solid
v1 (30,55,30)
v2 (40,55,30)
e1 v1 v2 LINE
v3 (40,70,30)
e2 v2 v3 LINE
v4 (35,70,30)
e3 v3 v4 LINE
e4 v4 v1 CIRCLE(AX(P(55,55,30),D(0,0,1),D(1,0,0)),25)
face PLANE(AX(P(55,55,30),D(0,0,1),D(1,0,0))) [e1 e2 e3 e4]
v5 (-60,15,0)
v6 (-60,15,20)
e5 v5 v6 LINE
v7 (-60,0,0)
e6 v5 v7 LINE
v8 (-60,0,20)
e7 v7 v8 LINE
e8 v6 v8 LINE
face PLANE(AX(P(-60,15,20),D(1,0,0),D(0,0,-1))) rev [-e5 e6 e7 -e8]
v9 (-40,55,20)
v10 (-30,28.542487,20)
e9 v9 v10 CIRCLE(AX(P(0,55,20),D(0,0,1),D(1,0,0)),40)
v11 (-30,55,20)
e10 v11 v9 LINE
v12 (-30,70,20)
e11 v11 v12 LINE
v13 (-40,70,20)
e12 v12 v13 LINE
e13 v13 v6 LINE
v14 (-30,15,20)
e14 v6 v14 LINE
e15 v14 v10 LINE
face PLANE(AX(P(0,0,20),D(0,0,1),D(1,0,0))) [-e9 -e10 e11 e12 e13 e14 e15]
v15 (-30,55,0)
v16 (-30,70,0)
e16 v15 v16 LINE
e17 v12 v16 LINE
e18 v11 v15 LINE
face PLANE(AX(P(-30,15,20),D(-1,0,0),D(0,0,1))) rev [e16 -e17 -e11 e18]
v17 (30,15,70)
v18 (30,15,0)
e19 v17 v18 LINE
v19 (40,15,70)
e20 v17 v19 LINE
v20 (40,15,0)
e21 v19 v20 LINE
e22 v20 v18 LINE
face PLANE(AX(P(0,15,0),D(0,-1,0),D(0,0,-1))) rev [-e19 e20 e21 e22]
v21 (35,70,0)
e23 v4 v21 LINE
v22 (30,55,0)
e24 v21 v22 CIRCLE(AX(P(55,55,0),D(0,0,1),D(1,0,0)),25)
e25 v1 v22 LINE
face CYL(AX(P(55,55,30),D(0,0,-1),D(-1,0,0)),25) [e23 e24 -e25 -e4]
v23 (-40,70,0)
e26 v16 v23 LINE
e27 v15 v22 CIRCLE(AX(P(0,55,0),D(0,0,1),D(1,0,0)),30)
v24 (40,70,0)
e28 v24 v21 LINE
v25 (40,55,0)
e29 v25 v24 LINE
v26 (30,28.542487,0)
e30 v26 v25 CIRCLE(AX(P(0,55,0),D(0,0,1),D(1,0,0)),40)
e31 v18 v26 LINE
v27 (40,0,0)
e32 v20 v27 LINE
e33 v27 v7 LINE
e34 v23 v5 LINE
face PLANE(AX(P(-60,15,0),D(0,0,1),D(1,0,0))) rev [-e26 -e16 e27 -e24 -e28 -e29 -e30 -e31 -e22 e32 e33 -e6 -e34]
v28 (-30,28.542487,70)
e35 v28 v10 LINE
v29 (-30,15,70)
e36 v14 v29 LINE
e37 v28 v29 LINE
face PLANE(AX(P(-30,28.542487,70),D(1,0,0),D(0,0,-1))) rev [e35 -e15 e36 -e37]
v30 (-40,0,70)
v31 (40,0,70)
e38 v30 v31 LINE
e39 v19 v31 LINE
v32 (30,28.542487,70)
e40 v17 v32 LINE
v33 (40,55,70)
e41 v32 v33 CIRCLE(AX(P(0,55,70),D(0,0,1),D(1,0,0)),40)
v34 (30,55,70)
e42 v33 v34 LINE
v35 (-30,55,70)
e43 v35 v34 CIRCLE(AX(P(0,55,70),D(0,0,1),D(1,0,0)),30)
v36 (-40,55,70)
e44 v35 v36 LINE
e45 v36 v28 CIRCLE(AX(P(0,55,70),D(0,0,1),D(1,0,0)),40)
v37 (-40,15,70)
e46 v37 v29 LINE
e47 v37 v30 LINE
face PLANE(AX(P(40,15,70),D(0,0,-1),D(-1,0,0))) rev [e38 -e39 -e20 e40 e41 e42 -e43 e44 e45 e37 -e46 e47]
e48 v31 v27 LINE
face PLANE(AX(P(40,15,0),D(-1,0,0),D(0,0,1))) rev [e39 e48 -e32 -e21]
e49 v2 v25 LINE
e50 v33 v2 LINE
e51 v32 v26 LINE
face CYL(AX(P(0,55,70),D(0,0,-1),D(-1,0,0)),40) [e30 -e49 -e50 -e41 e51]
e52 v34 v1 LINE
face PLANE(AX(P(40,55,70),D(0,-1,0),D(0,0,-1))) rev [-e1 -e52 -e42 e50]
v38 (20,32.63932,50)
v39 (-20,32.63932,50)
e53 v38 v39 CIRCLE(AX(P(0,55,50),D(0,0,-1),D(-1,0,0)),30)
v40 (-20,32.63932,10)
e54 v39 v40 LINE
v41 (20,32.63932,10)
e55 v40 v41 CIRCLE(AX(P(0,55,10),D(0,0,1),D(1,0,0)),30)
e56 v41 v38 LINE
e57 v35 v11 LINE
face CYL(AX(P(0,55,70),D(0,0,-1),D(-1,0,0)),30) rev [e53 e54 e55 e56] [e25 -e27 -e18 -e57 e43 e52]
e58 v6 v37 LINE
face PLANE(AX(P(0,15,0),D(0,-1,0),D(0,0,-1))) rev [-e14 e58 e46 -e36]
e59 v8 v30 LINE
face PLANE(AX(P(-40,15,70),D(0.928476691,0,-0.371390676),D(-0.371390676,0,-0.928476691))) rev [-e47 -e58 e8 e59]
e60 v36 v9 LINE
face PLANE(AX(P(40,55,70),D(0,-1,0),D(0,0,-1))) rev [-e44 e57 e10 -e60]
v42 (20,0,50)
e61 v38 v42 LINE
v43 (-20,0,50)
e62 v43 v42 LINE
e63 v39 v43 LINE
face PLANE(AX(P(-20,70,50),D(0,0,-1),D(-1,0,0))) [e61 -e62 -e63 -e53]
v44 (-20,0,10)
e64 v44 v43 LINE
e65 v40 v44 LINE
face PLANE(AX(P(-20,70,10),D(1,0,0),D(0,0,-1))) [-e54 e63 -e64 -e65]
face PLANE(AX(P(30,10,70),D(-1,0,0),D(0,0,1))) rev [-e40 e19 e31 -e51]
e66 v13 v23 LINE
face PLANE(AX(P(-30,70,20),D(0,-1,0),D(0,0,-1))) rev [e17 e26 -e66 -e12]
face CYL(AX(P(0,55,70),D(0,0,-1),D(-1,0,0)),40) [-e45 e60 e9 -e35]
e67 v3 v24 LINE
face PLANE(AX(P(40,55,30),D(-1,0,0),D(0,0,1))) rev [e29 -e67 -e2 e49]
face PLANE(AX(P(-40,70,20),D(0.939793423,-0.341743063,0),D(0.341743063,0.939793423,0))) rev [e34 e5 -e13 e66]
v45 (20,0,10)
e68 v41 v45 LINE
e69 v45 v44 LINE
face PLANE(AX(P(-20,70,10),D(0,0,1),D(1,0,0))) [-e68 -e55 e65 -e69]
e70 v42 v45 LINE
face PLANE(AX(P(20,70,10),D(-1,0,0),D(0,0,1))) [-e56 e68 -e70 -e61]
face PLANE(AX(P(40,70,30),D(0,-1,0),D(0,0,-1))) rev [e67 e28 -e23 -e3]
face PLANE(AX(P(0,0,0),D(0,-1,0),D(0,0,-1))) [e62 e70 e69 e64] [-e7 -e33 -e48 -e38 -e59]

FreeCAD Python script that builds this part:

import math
import FreeCAD as App
import Part
import Sketcher
from FreeCAD import Vector
Q = App.Units.Quantity

doc = App.newDocument("Part")
params = doc.addObject("Spreadsheet::Sheet", "Params")
for row, (alias, value) in enumerate([
    ("sketch1_width", "100 mm"),
    ("sketch1_width2", "80 mm"),
    ("sketch1_height", "20 mm"),
    ("sketch1_height2", "70 mm"),
    ("pad1_length", "15 mm"),
    ("sketch2_radius", "40 mm"),
    ("sketch2_width", "60 mm"),
    ("pad2_length", "70 mm"),
    ("sketch3_width", "30 mm"),
    ("sketch3_width2", "10 mm"),
    ("sketch3_height", "55 mm"),
    ("pad3_length", "20 mm"),
    ("sketch4_radius", "25 mm"),
    ("sketch4_width", "10 mm"),
    ("sketch4_width2", "5 mm"),
    ("pad4_length", "30 mm"),
    ("sketch5_radius", "30 mm"),
    ("sketch6_width", "40 mm"),
], start=1):
    params.set(f"A{row}", alias)
    params.set(f"B{row}", "=" + value)
    params.setAlias(f"B{row}", alias)

body = doc.addObject("PartDesign::Body", "Body")

sketch1 = doc.addObject("Sketcher::SketchObject", "Sketch")
body.addObject(sketch1)
sketch1.AttachmentSupport = (doc.XZ_Plane, [""])
sketch1.MapMode = "FlatFace"
sketch1.addGeometry([
    Part.LineSegment(Vector(40, 0, 0), Vector(-60, 0, 0)),
    Part.LineSegment(Vector(-60, 0, 0), Vector(-60, 20, 0)),
    Part.LineSegment(Vector(-60, 20, 0), Vector(-40, 70, 0)),
    Part.LineSegment(Vector(-40, 70, 0), Vector(40, 70, 0)),
    Part.LineSegment(Vector(40, 70, 0), Vector(40, 0, 0)),
], False)
sketch1.addConstraint([
    Sketcher.Constraint("Coincident", 0, 2, 1, 1),
    Sketcher.Constraint("Coincident", 1, 2, 2, 1),
    Sketcher.Constraint("Coincident", 2, 2, 3, 1),
    Sketcher.Constraint("Coincident", 3, 2, 4, 1),
    Sketcher.Constraint("Coincident", 4, 2, 0, 1),
    Sketcher.Constraint("Horizontal", 0),
    Sketcher.Constraint("Vertical", 1),
    Sketcher.Constraint("Horizontal", 3),
    Sketcher.Constraint("Vertical", 4),
    Sketcher.Constraint("PointOnObject", 0, 2, -1),
    Sketcher.Constraint("DistanceX", 0, 2, 0, 1, Q("100 mm")),
    Sketcher.Constraint("DistanceX", 3, 1, 3, 2, Q("80 mm")),
    Sketcher.Constraint("DistanceY", 1, 1, 1, 2, Q("20 mm")),
    Sketcher.Constraint("DistanceY", 4, 2, 4, 1, Q("70 mm")),
    Sketcher.Constraint("DistanceX", 0, 2, -1, 1, Q("60 mm")),
])
sketch1.setExpression("Constraints[10]", "Params.sketch1_width")
sketch1.setExpression("Constraints[11]", "Params.sketch1_width2")
sketch1.setExpression("Constraints[12]", "Params.sketch1_height")
sketch1.setExpression("Constraints[13]", "Params.sketch1_height2")
pad1 = doc.addObject("PartDesign::Pad", "Pad")
body.addObject(pad1)
pad1.Profile = sketch1
pad1.setExpression("Length", "Params.pad1_length")
pad1.Reversed = True

sketch2 = doc.addObject("Sketcher::SketchObject", "Sketch001")
body.addObject(sketch2)
sketch2.AttachmentSupport = (doc.XY_Plane, [""])
sketch2.MapMode = "FlatFace"
sketch2.addGeometry([
    Part.LineSegment(Vector(-30, 10, 0), Vector(30, 10, 0)),
    Part.LineSegment(Vector(30, 10, 0), Vector(30, 29, 0)),
    Part.ArcOfCircle(Part.Circle(Vector(0, 55, 0), Vector(0, 0, 1), 40), math.radians(-41), math.radians(0)),
    Part.LineSegment(Vector(40, 55, 0), Vector(-40, 55, 0)),
    Part.ArcOfCircle(Part.Circle(Vector(0, 55, 0), Vector(0, 0, 1), 40), math.radians(180), math.radians(221)),
    Part.LineSegment(Vector(-30, 29, 0), Vector(-30, 10, 0)),
], False)
sketch2.addConstraint([
    Sketcher.Constraint("Coincident", 0, 2, 1, 1),
    Sketcher.Constraint("Coincident", 1, 2, 2, 1),
    Sketcher.Constraint("Coincident", 2, 2, 3, 1),
    Sketcher.Constraint("Coincident", 3, 2, 4, 1),
    Sketcher.Constraint("Coincident", 4, 2, 5, 1),
    Sketcher.Constraint("Coincident", 5, 2, 0, 1),
    Sketcher.Constraint("Horizontal", 0),
    Sketcher.Constraint("Vertical", 1),
    Sketcher.Constraint("Horizontal", 3),
    Sketcher.Constraint("Vertical", 5),
    Sketcher.Constraint("Coincident", 4, 3, 2, 3),
    Sketcher.Constraint("Equal", 2, 4),
    Sketcher.Constraint("Symmetric", 1, 2, 4, 2, -2),
    Sketcher.Constraint("Horizontal", 4, 3, 2, 2),
    Sketcher.Constraint("Radius", 2, Q("40 mm")),
    Sketcher.Constraint("DistanceX", 0, 1, 0, 2, Q("60 mm")),
    Sketcher.Constraint("DistanceY", -1, 1, 2, 3, Q("55 mm")),
    Sketcher.Constraint("DistanceY", -1, 1, 0, 2, Q("10 mm")),
])
sketch2.setExpression("Constraints[14]", "Params.sketch2_radius")
sketch2.setExpression("Constraints[15]", "Params.sketch2_width")
pad2 = doc.addObject("PartDesign::Pad", "Pad001")
body.addObject(pad2)
pad2.Profile = sketch2
pad2.setExpression("Length", "Params.pad2_length")

sketch3 = doc.addObject("Sketcher::SketchObject", "Sketch002")
body.addObject(sketch3)
sketch3.AttachmentSupport = (doc.XY_Plane, [""])
sketch3.MapMode = "FlatFace"
sketch3.addGeometry([
    Part.LineSegment(Vector(-60, 15, 0), Vector(-30, 15, 0)),
    Part.LineSegment(Vector(-30, 15, 0), Vector(-30, 70, 0)),
    Part.LineSegment(Vector(-30, 70, 0), Vector(-40, 70, 0)),
    Part.LineSegment(Vector(-40, 70, 0), Vector(-60, 15, 0)),
], False)
sketch3.addConstraint([
    Sketcher.Constraint("Coincident", 0, 2, 1, 1),
    Sketcher.Constraint("Coincident", 1, 2, 2, 1),
    Sketcher.Constraint("Coincident", 2, 2, 3, 1),
    Sketcher.Constraint("Coincident", 3, 2, 0, 1),
    Sketcher.Constraint("Horizontal", 0),
    Sketcher.Constraint("Vertical", 1),
    Sketcher.Constraint("Horizontal", 2),
    Sketcher.Constraint("DistanceX", 0, 1, 0, 2, Q("30 mm")),
    Sketcher.Constraint("DistanceX", 2, 2, 2, 1, Q("10 mm")),
    Sketcher.Constraint("DistanceY", 1, 1, 1, 2, Q("55 mm")),
    Sketcher.Constraint("DistanceX", 0, 2, -1, 1, Q("30 mm")),
    Sketcher.Constraint("DistanceY", -1, 1, 0, 2, Q("15 mm")),
])
sketch3.setExpression("Constraints[7]", "Params.sketch3_width")
sketch3.setExpression("Constraints[8]", "Params.sketch3_width2")
sketch3.setExpression("Constraints[9]", "Params.sketch3_height")
pad3 = doc.addObject("PartDesign::Pad", "Pad002")
body.addObject(pad3)
pad3.Profile = sketch3
pad3.setExpression("Length", "Params.pad3_length")

sketch4 = doc.addObject("Sketcher::SketchObject", "Sketch003")
body.addObject(sketch4)
sketch4.AttachmentSupport = (doc.XY_Plane, [""])
sketch4.MapMode = "FlatFace"
sketch4.addGeometry([
    Part.LineSegment(Vector(30, 55, 0), Vector(40, 55, 0)),
    Part.LineSegment(Vector(40, 55, 0), Vector(40, 70, 0)),
    Part.LineSegment(Vector(40, 70, 0), Vector(35, 70, 0)),
    Part.ArcOfCircle(Part.Circle(Vector(55, 55, 0), Vector(0, 0, 1), 25), math.radians(143), math.radians(180)),
], False)
sketch4.addConstraint([
    Sketcher.Constraint("Coincident", 0, 2, 1, 1),
    Sketcher.Constraint("Coincident", 1, 2, 2, 1),
    Sketcher.Constraint("Coincident", 2, 2, 3, 1),
    Sketcher.Constraint("Coincident", 3, 2, 0, 1),
    Sketcher.Constraint("Horizontal", 0),
    Sketcher.Constraint("Vertical", 1),
    Sketcher.Constraint("Horizontal", 2),
    Sketcher.Constraint("Horizontal", 3, 3, 0, 2),
    Sketcher.Constraint("Radius", 3, Q("25 mm")),
    Sketcher.Constraint("DistanceX", 0, 1, 0, 2, Q("10 mm")),
    Sketcher.Constraint("DistanceX", 2, 2, 2, 1, Q("5 mm")),
    Sketcher.Constraint("DistanceX", -1, 1, 3, 3, Q("55 mm")),
    Sketcher.Constraint("DistanceY", -1, 1, 3, 3, Q("55 mm")),
])
sketch4.setExpression("Constraints[8]", "Params.sketch4_radius")
sketch4.setExpression("Constraints[9]", "Params.sketch4_width")
sketch4.setExpression("Constraints[10]", "Params.sketch4_width2")
pad4 = doc.addObject("PartDesign::Pad", "Pad003")
body.addObject(pad4)
pad4.Profile = sketch4
pad4.setExpression("Length", "Params.pad4_length")

sketch5 = doc.addObject("Sketcher::SketchObject", "Sketch004")
body.addObject(sketch5)
sketch5.AttachmentSupport = (doc.XY_Plane, [""])
sketch5.MapMode = "FlatFace"
sketch5.addGeometry([
    Part.LineSegment(Vector(30, 55, 0), Vector(-30, 55, 0)),
    Part.ArcOfCircle(Part.Circle(Vector(0, 55, 0), Vector(0, 0, 1), 30), math.radians(180), math.radians(360)),
], False)
sketch5.addConstraint([
    Sketcher.Constraint("Coincident", 0, 1, 1, 2),
    Sketcher.Constraint("Coincident", 1, 1, 0, 2),
    Sketcher.Constraint("Horizontal", 0),
    Sketcher.Constraint("PointOnObject", 1, 3, -2),
    Sketcher.Constraint("Horizontal", 1, 3, 0, 1),
    Sketcher.Constraint("Radius", 1, Q("30 mm")),
    Sketcher.Constraint("DistanceY", -1, 1, 1, 3, Q("55 mm")),
])
sketch5.setExpression("Constraints[5]", "Params.sketch5_radius")
pocket1 = doc.addObject("PartDesign::Pocket", "Pocket")
body.addObject(pocket1)
pocket1.Profile = sketch5
pocket1.Type = "ThroughAll"
pocket1.Reversed = True

sketch6 = doc.addObject("Sketcher::SketchObject", "Sketch005")
body.addObject(sketch6)
sketch6.AttachmentSupport = (doc.XZ_Plane, [""])
sketch6.MapMode = "FlatFace"
sketch6.addGeometry([
    Part.LineSegment(Vector(-20, 10, 0), Vector(-20, 50, 0)),
    Part.LineSegment(Vector(-20, 50, 0), Vector(20, 50, 0)),
    Part.LineSegment(Vector(20, 50, 0), Vector(20, 10, 0)),
    Part.LineSegment(Vector(20, 10, 0), Vector(-20, 10, 0)),
], False)
sketch6.addConstraint([
    Sketcher.Constraint("Coincident", 0, 2, 1, 1),
    Sketcher.Constraint("Coincident", 1, 2, 2, 1),
    Sketcher.Constraint("Coincident", 2, 2, 3, 1),
    Sketcher.Constraint("Coincident", 3, 2, 0, 1),
    Sketcher.Constraint("Vertical", 0),
    Sketcher.Constraint("Horizontal", 1),
    Sketcher.Constraint("Vertical", 2),
    Sketcher.Constraint("Horizontal", 3),
    Sketcher.Constraint("Equal", 3, 0),
    Sketcher.Constraint("DistanceX", 1, 1, 1, 2, Q("40 mm")),
    Sketcher.Constraint("DistanceX", 0, 2, -1, 1, Q("20 mm")),
    Sketcher.Constraint("DistanceY", -1, 1, 0, 2, Q("50 mm")),
])
sketch6.setExpression("Constraints[9]", "Params.sketch6_width")
pocket2 = doc.addObject("PartDesign::Pocket", "Pocket001")
body.addObject(pocket2)
pocket2.Profile = sketch6
pocket2.Type = "ThroughAll"

doc.recompute()
